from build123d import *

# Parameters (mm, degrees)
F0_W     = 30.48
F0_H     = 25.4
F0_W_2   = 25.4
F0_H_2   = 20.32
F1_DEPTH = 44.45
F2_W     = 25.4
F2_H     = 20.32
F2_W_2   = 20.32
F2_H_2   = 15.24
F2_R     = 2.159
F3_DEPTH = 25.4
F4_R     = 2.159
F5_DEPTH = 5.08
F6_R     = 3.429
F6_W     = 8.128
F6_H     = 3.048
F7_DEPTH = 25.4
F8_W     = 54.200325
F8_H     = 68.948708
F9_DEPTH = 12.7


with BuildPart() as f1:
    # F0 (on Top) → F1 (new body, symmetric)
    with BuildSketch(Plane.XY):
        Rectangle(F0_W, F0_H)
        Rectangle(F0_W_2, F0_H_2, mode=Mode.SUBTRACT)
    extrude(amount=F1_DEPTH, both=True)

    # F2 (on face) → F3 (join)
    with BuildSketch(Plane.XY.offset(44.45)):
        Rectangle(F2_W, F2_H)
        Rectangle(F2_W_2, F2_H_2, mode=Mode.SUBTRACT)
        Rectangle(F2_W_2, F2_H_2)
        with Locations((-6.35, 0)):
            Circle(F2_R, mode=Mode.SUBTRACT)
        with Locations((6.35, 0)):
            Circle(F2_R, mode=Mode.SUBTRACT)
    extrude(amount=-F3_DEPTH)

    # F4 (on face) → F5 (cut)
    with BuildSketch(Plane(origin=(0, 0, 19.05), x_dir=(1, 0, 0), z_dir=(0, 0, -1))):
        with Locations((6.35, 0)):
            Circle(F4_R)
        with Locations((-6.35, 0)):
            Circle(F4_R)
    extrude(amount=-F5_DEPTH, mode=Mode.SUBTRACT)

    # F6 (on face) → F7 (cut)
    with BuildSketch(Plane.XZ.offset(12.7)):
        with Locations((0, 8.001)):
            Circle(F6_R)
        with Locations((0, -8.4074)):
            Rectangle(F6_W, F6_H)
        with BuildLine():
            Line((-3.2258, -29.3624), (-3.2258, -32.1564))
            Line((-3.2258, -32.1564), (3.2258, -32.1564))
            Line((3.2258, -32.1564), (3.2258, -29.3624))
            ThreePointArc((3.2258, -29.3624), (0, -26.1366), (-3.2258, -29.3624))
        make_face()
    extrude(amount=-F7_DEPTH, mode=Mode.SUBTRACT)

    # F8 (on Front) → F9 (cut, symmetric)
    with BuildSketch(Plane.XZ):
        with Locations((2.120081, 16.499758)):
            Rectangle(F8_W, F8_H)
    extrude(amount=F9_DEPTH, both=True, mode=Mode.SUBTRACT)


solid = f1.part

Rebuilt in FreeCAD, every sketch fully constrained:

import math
import FreeCAD as App
import Part
import Sketcher

V = App.Vector
Q = App.Units.Quantity

doc = App.newDocument("Part")
body = doc.addObject("PartDesign::Body", "Body")

# Sketch on XY plane
sketch1 = body.newObject("Sketcher::SketchObject", "Sketch")
sketch1.AttachmentSupport = (doc.getObject("XY_Plane"), [""])
sketch1.MapMode = "FlatFace"
sketch1.addGeometry(Part.LineSegment(V(-15, 13, 0), V(-15, -13, 0)), False)
sketch1.addGeometry(Part.LineSegment(V(-15, -13, 0), V(15, -13, 0)), False)
sketch1.addGeometry(Part.LineSegment(V(15, -13, 0), V(15, 13, 0)), False)
sketch1.addGeometry(Part.LineSegment(V(15, 13, 0), V(-15, 13, 0)), False)
sketch1.addGeometry(Part.LineSegment(V(13, -10, 0), V(-13, -10, 0)), False)
sketch1.addGeometry(Part.LineSegment(V(-13, -10, 0), V(-13, 10, 0)), False)
sketch1.addGeometry(Part.LineSegment(V(-13, 10, 0), V(13, 10, 0)), False)
sketch1.addGeometry(Part.LineSegment(V(13, 10, 0), V(13, -10, 0)), False)
sketch1.addConstraint(Sketcher.Constraint("Coincident", 0, 2, 1, 1))
sketch1.addConstraint(Sketcher.Constraint("Coincident", 1, 2, 2, 1))
sketch1.addConstraint(Sketcher.Constraint("Coincident", 2, 2, 3, 1))
sketch1.addConstraint(Sketcher.Constraint("Coincident", 3, 2, 0, 1))
sketch1.addConstraint(Sketcher.Constraint("Coincident", 4, 2, 5, 1))
sketch1.addConstraint(Sketcher.Constraint("Coincident", 5, 2, 6, 1))
sketch1.addConstraint(Sketcher.Constraint("Coincident", 6, 2, 7, 1))
sketch1.addConstraint(Sketcher.Constraint("Coincident", 7, 2, 4, 1))
sketch1.addConstraint(Sketcher.Constraint("Vertical", 0))
sketch1.addConstraint(Sketcher.Constraint("Horizontal", 1))
sketch1.addConstraint(Sketcher.Constraint("Vertical", 2))
sketch1.addConstraint(Sketcher.Constraint("Horizontal", 3))
sketch1.addConstraint(Sketcher.Constraint("Horizontal", 4))
sketch1.addConstraint(Sketcher.Constraint("Vertical", 5))
sketch1.addConstraint(Sketcher.Constraint("Horizontal", 6))
sketch1.addConstraint(Sketcher.Constraint("Vertical", 7))
sketch1.addConstraint(Sketcher.Constraint("Symmetric", 0, 2, 2, 2, -1, 1))
sketch1.addConstraint(Sketcher.Constraint("Symmetric", 4, 2, 6, 2, -1, 1))
sketch1.addConstraint(Sketcher.Constraint("Equal", 6, 0))
sketch1.addConstraint(Sketcher.Constraint("DistanceX", 4, 2, 4, 1, Q("1 in")))
sketch1.addConstraint(Sketcher.Constraint("DistanceX", 1, 1, 1, 2, Q("1.2 in")))
sketch1.addConstraint(Sketcher.Constraint("DistanceY", 5, 1, 5, 2, Q("0.8 in")))
pad1 = body.newObject("PartDesign::Pad", "Pad")
pad1.Profile = sketch1
pad1.Length = Q("3.5 in")
pad1.Midplane = True

# Sketch on XY plane
sketch2 = body.newObject("Sketcher::SketchObject", "Sketch001")
sketch2.AttachmentSupport = (doc.getObject("XY_Plane"), [""])
sketch2.MapMode = "FlatFace"
sketch2.AttachmentOffset = App.Placement(V(0, 0, 1.75 * 25.4), App.Rotation())
sketch2.addGeometry(Part.LineSegment(V(-12.7, 10.2, 0), V(-12.7, -10.2, 0)), False)
sketch2.addGeometry(Part.LineSegment(V(-12.7, -10.2, 0), V(12.7, -10.2, 0)), False)
sketch2.addGeometry(Part.LineSegment(V(12.7, -10.2, 0), V(12.7, 10.2, 0)), False)
sketch2.addGeometry(Part.LineSegment(V(12.7, 10.2, 0), V(-12.7, 10.2, 0)), False)
sketch2.addGeometry(Part.Circle(V(-6.3, 0, 0), V(0, 0, 1), 2.2), False)
sketch2.addGeometry(Part.Circle(V(6.3, 0, 0), V(0, 0, 1), 2.2), False)
sketch2.addConstraint(Sketcher.Constraint("Coincident", 0, 2, 1, 1))
sketch2.addConstraint(Sketcher.Constraint("Coincident", 1, 2, 2, 1))
sketch2.addConstraint(Sketcher.Constraint("Coincident", 2, 2, 3, 1))
sketch2.addConstraint(Sketcher.Constraint("Coincident", 3, 2, 0, 1))
sketch2.addConstraint(Sketcher.Constraint("Vertical", 0))
sketch2.addConstraint(Sketcher.Constraint("Horizontal", 1))
sketch2.addConstraint(Sketcher.Constraint("Vertical", 2))
sketch2.addConstraint(Sketcher.Constraint("Horizontal", 3))
sketch2.addConstraint(Sketcher.Constraint("Equal", 4, 5))
sketch2.addConstraint(Sketcher.Constraint("Symmetric", 4, 3, 5, 3, -1, 1))
sketch2.addConstraint(Sketcher.Constraint("Symmetric", 0, 2, 2, 2, -1, 1))
sketch2.addConstraint(Sketcher.Constraint("PointOnObject", 4, 3, -1))
sketch2.addConstraint(Sketcher.Constraint("Diameter", 4, Q("0.17 in")))
sketch2.addConstraint(Sketcher.Constraint("DistanceX", 1, 1, 1, 2, Q("1 in")))
sketch2.addConstraint(Sketcher.Constraint("DistanceY", 0, 2, 0, 1, Q("0.8 in")))
sketch2.addConstraint(Sketcher.Constraint("DistanceX", 4, 3, 5, 3, Q("0.5 in")))
pad2 = body.newObject("PartDesign::Pad", "Pad001")
pad2.Profile = sketch2
pad2.Length = Q("1 in")
pad2.Reversed = True

# Sketch on XY plane
sketch3 = body.newObject("Sketcher::SketchObject", "Sketch002")
sketch3.AttachmentSupport = (doc.getObject("XY_Plane"), [""])
sketch3.MapMode = "FlatFace"
sketch3.AttachmentOffset = App.Placement(V(0, 0, 0.75 * 25.4), App.Rotation())
sketch3.addGeometry(Part.Circle(V(6.3, 0, 0), V(0, 0, 1), 2.2), False)
sketch3.addGeometry(Part.Circle(V(-6.3, 0, 0), V(0, 0, 1), 2.2), False)
sketch3.addConstraint(Sketcher.Constraint("Equal", 0, 1))
sketch3.addConstraint(Sketcher.Constraint("Symmetric", 0, 3, 1, 3, -1, 1))
sketch3.addConstraint(Sketcher.Constraint("PointOnObject", 0, 3, -1))
sketch3.addConstraint(Sketcher.Constraint("Diameter", 0, Q("0.17 in")))
sketch3.addConstraint(Sketcher.Constraint("DistanceX", 1, 3, 0, 3, Q("0.5 in")))
pocket1 = body.newObject("PartDesign::Pocket", "Pocket")
pocket1.Profile = sketch3
pocket1.Length = Q("0.2 in")
pocket1.Reversed = True

# Sketch on XZ plane
sketch4 = body.newObject("Sketcher::SketchObject", "Sketch003")
sketch4.AttachmentSupport = (doc.getObject("XZ_Plane"), [""])
sketch4.MapMode = "FlatFace"
sketch4.AttachmentOffset = App.Placement(V(0, 0, 0.5 * 25.4), App.Rotation())
sketch4.addGeometry(Part.Circle(V(0, 8, 0), V(0, 0, 1), 3.4), False)
sketch4.addGeometry(Part.LineSegment(V(-4.1, -6.9, 0), V(-4.1, -9.9, 0)), False)
sketch4.addGeometry(Part.LineSegment(V(-4.1, -9.9, 0), V(4.1, -9.9, 0)), False)
sketch4.addGeometry(Part.LineSegment(V(4.1, -9.9, 0), V(4.1, -6.9, 0)), False)
sketch4.addGeometry(Part.LineSegment(V(4.1, -6.9, 0), V(-4.1, -6.9, 0)), False)
sketch4.addGeometry(Part.LineSegment(V(-3.2, -29.4, 0), V(-3.2, -32.2, 0)), False)
sketch4.addGeometry(Part.LineSegment(V(-3.2, -32.2, 0), V(3.2, -32.2, 0)), False)
sketch4.addGeometry(Part.LineSegment(V(3.2, -32.2, 0), V(3.2, -29.4, 0)), False)
sketch4.addGeometry(Part.ArcOfCircle(Part.Circle(V(0, -29.4, 0), V(0, 0, 1), 3.2), math.radians(0), math.radians(180)), False)
sketch4.addConstraint(Sketcher.Constraint("Coincident", 1, 2, 2, 1))
sketch4.addConstraint(Sketcher.Constraint("Coincident", 2, 2, 3, 1))
sketch4.addConstraint(Sketcher.Constraint("Coincident", 3, 2, 4, 1))
sketch4.addConstraint(Sketcher.Constraint("Coincident", 4, 2, 1, 1))
sketch4.addConstraint(Sketcher.Constraint("Coincident", 5, 2, 6, 1))
sketch4.addConstraint(Sketcher.Constraint("Coincident", 6, 2, 7, 1))
sketch4.addConstraint(Sketcher.Constraint("Tangent", 7, 2, 8, 1))
sketch4.addConstraint(Sketcher.Constraint("Tangent", 8, 2, 5, 1))
sketch4.addConstraint(Sketcher.Constraint("Vertical", 1))
sketch4.addConstraint(Sketcher.Constraint("Horizontal", 2))
sketch4.addConstraint(Sketcher.Constraint("Vertical", 3))
sketch4.addConstraint(Sketcher.Constraint("Horizontal", 4))
sketch4.addConstraint(Sketcher.Constraint("Vertical", 5))
sketch4.addConstraint(Sketcher.Constraint("Horizontal", 6))
sketch4.addConstraint(Sketcher.Constraint("Vertical", 7))
sketch4.addConstraint(Sketcher.Constraint("PointOnObject", 0, 3, -2))
sketch4.addConstraint(Sketcher.Constraint("PointOnObject", 8, 3, -2))
sketch4.addConstraint(Sketcher.Constraint("Diameter", 0, Q("0.27 in")))
sketch4.addConstraint(Sketcher.Constraint("Radius", 8, Q("0.127 in")))
sketch4.addConstraint(Sketcher.Constraint("DistanceX", 2, 1, 2, 2, Q("0.32 in")))
sketch4.addConstraint(Sketcher.Constraint("DistanceY", 1, 2, 1, 1, Q("0.12 in")))
sketch4.addConstraint(Sketcher.Constraint("DistanceY", 5, 2, 5, 1, Q("0.11 in")))
sketch4.addConstraint(Sketcher.Constraint("DistanceX", 1, 2, -1, 1, Q("0.16 in")))
sketch4.addConstraint(Sketcher.Constraint("DistanceY", -1, 1, 0, 3, Q("0.315 in")))
sketch4.addConstraint(Sketcher.Constraint("DistanceY", 8, 3, -1, 1, Q("1.156 in")))
sketch4.addConstraint(Sketcher.Constraint("DistanceY", 1, 2, -1, 1, Q("0.391 in")))
pocket2 = body.newObject("PartDesign::Pocket", "Pocket001")
pocket2.Profile = sketch4
pocket2.Length = Q("1 in")

# Sketch on XZ plane
sketch5 = body.newObject("Sketcher::SketchObject", "Sketch004")
sketch5.AttachmentSupport = (doc.getObject("XZ_Plane"), [""])
sketch5.MapMode = "FlatFace"
sketch5.addGeometry(Part.LineSegment(V(-25, 51, 0), V(-25, -18, 0)), False)
sketch5.addGeometry(Part.LineSegment(V(-25, -18, 0), V(29, -18, 0)), False)
sketch5.addGeometry(Part.LineSegment(V(29, -18, 0), V(29, 51, 0)), False)
sketch5.addGeometry(Part.LineSegment(V(29, 51, 0), V(-25, 51, 0)), False)
sketch5.addConstraint(Sketcher.Constraint("Coincident", 0, 2, 1, 1))
sketch5.addConstraint(Sketcher.Constraint("Coincident", 1, 2, 2, 1))
sketch5.addConstraint(Sketcher.Constraint("Coincident", 2, 2, 3, 1))
sketch5.addConstraint(Sketcher.Constraint("Coincident", 3, 2, 0, 1))
sketch5.addConstraint(Sketcher.Constraint("Vertical", 0))
sketch5.addConstraint(Sketcher.Constraint("Horizontal", 1))
sketch5.addConstraint(Sketcher.Constraint("Vertical", 2))
sketch5.addConstraint(Sketcher.Constraint("Horizontal", 3))
sketch5.addConstraint(Sketcher.Constraint("DistanceX", 1, 1, 1, 2, 54.200325))
sketch5.addConstraint(Sketcher.Constraint("DistanceY", 0, 2, 0, 1, 68.948708))
sketch5.addConstraint(Sketcher.Constraint("DistanceX", 0, 2, -1, 1, 24.980082))
sketch5.addConstraint(Sketcher.Constraint("DistanceY", -1, 1, 2, 2, 50.974112))
pocket3 = body.newObject("PartDesign::Pocket", "Pocket002")
pocket3.Profile = sketch5
pocket3.Length = Q("1 in")
pocket3.Midplane = True

doc.recompute()
